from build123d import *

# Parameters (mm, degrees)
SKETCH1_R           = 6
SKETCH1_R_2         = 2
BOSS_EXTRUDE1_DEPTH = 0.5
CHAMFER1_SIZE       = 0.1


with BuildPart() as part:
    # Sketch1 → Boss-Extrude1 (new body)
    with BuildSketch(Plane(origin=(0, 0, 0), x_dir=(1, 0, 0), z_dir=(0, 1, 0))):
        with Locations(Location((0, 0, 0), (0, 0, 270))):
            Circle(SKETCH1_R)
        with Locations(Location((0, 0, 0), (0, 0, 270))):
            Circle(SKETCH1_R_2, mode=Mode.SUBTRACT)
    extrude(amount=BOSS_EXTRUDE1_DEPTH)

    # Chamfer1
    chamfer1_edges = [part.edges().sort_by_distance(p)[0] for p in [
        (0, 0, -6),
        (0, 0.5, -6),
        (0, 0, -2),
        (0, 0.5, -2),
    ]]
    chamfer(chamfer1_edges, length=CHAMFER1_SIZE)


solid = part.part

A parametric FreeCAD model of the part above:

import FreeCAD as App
import Part
import Sketcher
from FreeCAD import Vector
Q = App.Units.Quantity


def edges_at(feature, points):
    """Names of the edges that pass closest to the given points."""
    edges = feature.Shape.Edges
    near = lambda p: min(range(len(edges)), key=lambda i: edges[i].distToShape(Part.Vertex(*p))[0])
    return sorted({f"Edge{near(p) + 1}" for p in points})

doc = App.newDocument("Part")
body = doc.addObject("PartDesign::Body", "Body")

sketch1 = body.newObject("Sketcher::SketchObject", "Sketch")
sketch1.AttachmentSupport = (doc.getObject("XZ_Plane"), [""])
sketch1.MapMode = "FlatFace"
sketch1.addGeometry(Part.Circle(Vector(0, 0, 0), Vector(0, 0, 1), 6), False)
sketch1.addGeometry(Part.Circle(Vector(0, 0, 0), Vector(0, 0, 1), 2), False)
sketch1.addConstraint(Sketcher.Constraint("Coincident", 0, 3, -1, 1))
sketch1.addConstraint(Sketcher.Constraint("Coincident", 1, 3, -1, 1))
sketch1.addConstraint(Sketcher.Constraint("Diameter", 0, Q("12 mm")))
sketch1.addConstraint(Sketcher.Constraint("Diameter", 1, Q("4 mm")))
pad1 = body.newObject("PartDesign::Pad", "Pad")
pad1.Profile = sketch1
pad1.Length = 0.5
pad1.Reversed = True
doc.recompute()

chamfer = body.newObject("PartDesign::Chamfer", "Chamfer")
chamfer.Base = (pad1, edges_at(pad1, [
    (0, 0, -6),
    (0, 0.5, -6),
    (0, 0, -2),
    (0, 0.5, -2),
]))
chamfer.Size = 0.1

doc.recompute()
